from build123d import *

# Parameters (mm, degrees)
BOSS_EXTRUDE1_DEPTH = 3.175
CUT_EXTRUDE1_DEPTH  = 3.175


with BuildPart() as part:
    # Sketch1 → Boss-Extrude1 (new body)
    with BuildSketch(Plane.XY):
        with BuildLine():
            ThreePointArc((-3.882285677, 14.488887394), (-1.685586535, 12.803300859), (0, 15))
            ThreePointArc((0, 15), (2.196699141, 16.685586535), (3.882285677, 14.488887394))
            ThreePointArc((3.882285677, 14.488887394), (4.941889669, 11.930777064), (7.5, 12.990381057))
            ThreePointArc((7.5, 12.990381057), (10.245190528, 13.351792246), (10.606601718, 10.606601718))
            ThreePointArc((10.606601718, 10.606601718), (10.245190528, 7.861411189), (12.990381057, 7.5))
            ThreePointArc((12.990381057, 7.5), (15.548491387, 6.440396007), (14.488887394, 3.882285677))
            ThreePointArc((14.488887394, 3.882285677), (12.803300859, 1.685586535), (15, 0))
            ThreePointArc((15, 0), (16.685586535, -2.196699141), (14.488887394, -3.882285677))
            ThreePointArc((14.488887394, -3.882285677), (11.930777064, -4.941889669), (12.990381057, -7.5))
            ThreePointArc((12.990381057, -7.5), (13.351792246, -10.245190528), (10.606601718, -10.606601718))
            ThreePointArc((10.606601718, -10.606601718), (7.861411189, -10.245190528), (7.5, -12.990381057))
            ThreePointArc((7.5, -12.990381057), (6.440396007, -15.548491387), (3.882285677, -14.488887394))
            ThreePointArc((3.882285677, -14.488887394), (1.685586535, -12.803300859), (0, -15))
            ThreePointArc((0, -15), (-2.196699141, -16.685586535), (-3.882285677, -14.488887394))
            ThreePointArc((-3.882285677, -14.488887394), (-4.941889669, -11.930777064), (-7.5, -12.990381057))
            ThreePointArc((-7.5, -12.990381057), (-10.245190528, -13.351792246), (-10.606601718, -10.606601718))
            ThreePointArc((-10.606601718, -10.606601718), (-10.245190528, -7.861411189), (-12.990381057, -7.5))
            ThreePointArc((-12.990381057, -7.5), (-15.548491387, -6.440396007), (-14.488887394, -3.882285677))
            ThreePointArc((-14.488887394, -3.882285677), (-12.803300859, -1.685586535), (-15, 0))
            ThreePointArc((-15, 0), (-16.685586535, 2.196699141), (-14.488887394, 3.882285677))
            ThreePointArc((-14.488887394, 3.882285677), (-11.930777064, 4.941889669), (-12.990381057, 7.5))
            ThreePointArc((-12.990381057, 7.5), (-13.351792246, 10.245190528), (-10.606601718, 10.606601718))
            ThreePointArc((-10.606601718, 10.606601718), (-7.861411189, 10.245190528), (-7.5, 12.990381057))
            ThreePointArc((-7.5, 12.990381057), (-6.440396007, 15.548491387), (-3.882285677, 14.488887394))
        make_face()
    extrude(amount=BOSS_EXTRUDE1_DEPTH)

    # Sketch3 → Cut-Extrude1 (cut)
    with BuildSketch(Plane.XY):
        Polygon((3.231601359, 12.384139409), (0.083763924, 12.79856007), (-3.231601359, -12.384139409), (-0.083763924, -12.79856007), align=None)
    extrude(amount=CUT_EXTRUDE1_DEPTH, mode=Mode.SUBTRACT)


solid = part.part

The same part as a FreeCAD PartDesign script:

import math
import FreeCAD as App
import Part
import Sketcher
Q = App.Units.Quantity

doc = App.newDocument("Part")
params = doc.addObject("Spreadsheet::Sheet", "Params")
for row, (alias, value) in enumerate([
    ("pad1_length", "0.125 in"),
    ("sketch2_length", "1 in"),
    ("sketch2_length2", "0.125 in"),
    ("pocket1_length", "0.125 in"),
], start=1):
    params.set(f"A{row}", alias)
    params.set(f"B{row}", "=" + value)
    params.setAlias(f"B{row}", alias)

body = doc.addObject("PartDesign::Body", "Body")

# Sketch on XY plane
sketch1 = body.newObject("Sketcher::SketchObject", "Sketch")
sketch1.AttachmentSupport = (doc.getObject("XY_Plane"), [""])
sketch1.MapMode = "FlatFace"
sketch1.addGeometry([
    Part.ArcOfCircle(Part.Circle(App.Vector(-1.9, 14.7, 0), App.Vector(0, 0, 1), 2), math.radians(-172), math.radians(8)),  # 0
    Part.ArcOfCircle(Part.Circle(App.Vector(-5.7, 13.7, 0), App.Vector(0, 0, 1), 2), math.radians(23), math.radians(202)),  # 1
    Part.ArcOfCircle(Part.Circle(App.Vector(-9.1, 11.8, 0), App.Vector(0, 0, 1), 2), math.radians(-143), math.radians(38)),  # 2
    Part.ArcOfCircle(Part.Circle(App.Vector(-11.8, 9.1, 0), App.Vector(0, 0, 1), 2), math.radians(53), math.radians(232)),  # 3
    Part.ArcOfCircle(Part.Circle(App.Vector(-13.7, 5.7, 0), App.Vector(0, 0, 1), 2), math.radians(-113), math.radians(68)),  # 4
    Part.ArcOfCircle(Part.Circle(App.Vector(-14.7, 1.9, 0), App.Vector(0, 0, 1), 2), math.radians(83), math.radians(262)),  # 5
    Part.ArcOfCircle(Part.Circle(App.Vector(-14.7, -1.9, 0), App.Vector(0, 0, 1), 2), math.radians(-82), math.radians(98)),  # 6
    Part.ArcOfCircle(Part.Circle(App.Vector(-13.7, -5.7, 0), App.Vector(0, 0, 1), 2), math.radians(113), math.radians(292)),  # 7
    Part.ArcOfCircle(Part.Circle(App.Vector(-11.8, -9.1, 0), App.Vector(0, 0, 1), 2), math.radians(-53), math.radians(128)),  # 8
    Part.ArcOfCircle(Part.Circle(App.Vector(-9.1, -11.8, 0), App.Vector(0, 0, 1), 2), math.radians(143), math.radians(322)),  # 9
    Part.ArcOfCircle(Part.Circle(App.Vector(-5.7, -13.7, 0), App.Vector(0, 0, 1), 2), math.radians(-23), math.radians(158)),  # 10
    Part.ArcOfCircle(Part.Circle(App.Vector(-1.9, -14.7, 0), App.Vector(0, 0, 1), 2), math.radians(173), math.radians(352)),  # 11
    Part.ArcOfCircle(Part.Circle(App.Vector(1.9, -14.7, 0), App.Vector(0, 0, 1), 2), math.radians(8), math.radians(188)),  # 12
    Part.ArcOfCircle(Part.Circle(App.Vector(5.7, -13.7, 0), App.Vector(0, 0, 1), 2), math.radians(-157), math.radians(22)),  # 13
    Part.ArcOfCircle(Part.Circle(App.Vector(9.1, -11.8, 0), App.Vector(0, 0, 1), 2), math.radians(37), math.radians(218)),  # 14
    Part.ArcOfCircle(Part.Circle(App.Vector(11.8, -9.1, 0), App.Vector(0, 0, 1), 2), math.radians(-127), math.radians(52)),  # 15
    Part.ArcOfCircle(Part.Circle(App.Vector(13.7, -5.7, 0), App.Vector(0, 0, 1), 2), math.radians(67), math.radians(248)),  # 16
    Part.ArcOfCircle(Part.Circle(App.Vector(14.7, -1.9, 0), App.Vector(0, 0, 1), 2), math.radians(-97), math.radians(82)),  # 17
    Part.ArcOfCircle(Part.Circle(App.Vector(14.7, 1.9, 0), App.Vector(0, 0, 1), 2), math.radians(98), math.radians(278)),  # 18
    Part.ArcOfCircle(Part.Circle(App.Vector(13.7, 5.7, 0), App.Vector(0, 0, 1), 2), math.radians(-67), math.radians(112)),  # 19
    Part.ArcOfCircle(Part.Circle(App.Vector(11.8, 9.1, 0), App.Vector(0, 0, 1), 2), math.radians(127), math.radians(308)),  # 20
    Part.ArcOfCircle(Part.Circle(App.Vector(9.1, 11.8, 0), App.Vector(0, 0, 1), 2), math.radians(-37), math.radians(142)),  # 21
    Part.ArcOfCircle(Part.Circle(App.Vector(5.7, 13.7, 0), App.Vector(0, 0, 1), 2), math.radians(157), math.radians(338)),  # 22
    Part.ArcOfCircle(Part.Circle(App.Vector(1.9, 14.7, 0), App.Vector(0, 0, 1), 2), math.radians(-7), math.radians(172)),  # 23
], False)
sketch1.addConstraint([
    Sketcher.Constraint("Coincident", 0, 1, 1, 1),
    Sketcher.Constraint("Coincident", 1, 2, 2, 2),
    Sketcher.Constraint("Coincident", 2, 1, 3, 1),
    Sketcher.Constraint("Coincident", 3, 2, 4, 2),
    Sketcher.Constraint("Coincident", 4, 1, 5, 1),
    Sketcher.Constraint("Coincident", 5, 2, 6, 2),
    Sketcher.Constraint("Coincident", 6, 1, 7, 1),
    Sketcher.Constraint("Coincident", 7, 2, 8, 2),
    Sketcher.Constraint("Coincident", 8, 1, 9, 1),
    Sketcher.Constraint("Coincident", 9, 2, 10, 2),
    Sketcher.Constraint("Coincident", 10, 1, 11, 1),
    Sketcher.Constraint("Coincident", 11, 2, 12, 2),
    Sketcher.Constraint("Coincident", 12, 1, 13, 1),
    Sketcher.Constraint("Coincident", 13, 2, 14, 2),
    Sketcher.Constraint("Coincident", 14, 1, 15, 1),
    Sketcher.Constraint("Coincident", 15, 2, 16, 2),
    Sketcher.Constraint("Coincident", 16, 1, 17, 1),
    Sketcher.Constraint("Coincident", 17, 2, 18, 2),
    Sketcher.Constraint("Coincident", 18, 1, 19, 1),
    Sketcher.Constraint("Coincident", 19, 2, 20, 2),
    Sketcher.Constraint("Coincident", 20, 1, 21, 1),
    Sketcher.Constraint("Coincident", 21, 2, 22, 2),
    Sketcher.Constraint("Coincident", 22, 1, 23, 1),
    Sketcher.Constraint("Coincident", 23, 2, 0, 2),
    Sketcher.Constraint("Equal", 0, 1),
    Sketcher.Constraint("Equal", 1, 2),
    Sketcher.Constraint("Equal", 2, 3),
    Sketcher.Constraint("Equal", 3, 4),
    Sketcher.Constraint("Equal", 4, 5),
    Sketcher.Constraint("Equal", 5, 6),
    Sketcher.Constraint("Equal", 6, 7),
    Sketcher.Constraint("Equal", 7, 8),
    Sketcher.Constraint("Equal", 8, 9),
    Sketcher.Constraint("Equal", 9, 10),
    Sketcher.Constraint("Equal", 10, 11),
    Sketcher.Constraint("Equal", 11, 12),
    Sketcher.Constraint("Equal", 12, 13),
    Sketcher.Constraint("Equal", 13, 14),
    Sketcher.Constraint("Equal", 14, 15),
    Sketcher.Constraint("Equal", 15, 16),
    Sketcher.Constraint("Equal", 16, 17),
    Sketcher.Constraint("Equal", 17, 18),
    Sketcher.Constraint("Equal", 18, 19),
    Sketcher.Constraint("Equal", 19, 20),
    Sketcher.Constraint("Equal", 20, 21),
    Sketcher.Constraint("Equal", 21, 22),
    Sketcher.Constraint("Equal", 22, 23),
    Sketcher.Constraint("Symmetric", 0, 3, 12, 3, -1, 1),
    Sketcher.Constraint("Symmetric", 1, 3, 13, 3, -1, 1),
    Sketcher.Constraint("Symmetric", 2, 3, 14, 3, -1, 1),
    Sketcher.Constraint("Symmetric", 3, 3, 15, 3, -1, 1),
    Sketcher.Constraint("Symmetric", 4, 3, 16, 3, -1, 1),
    Sketcher.Constraint("Symmetric", 5, 3, 17, 3, -1, 1),
    Sketcher.Constraint("Symmetric", 6, 3, 18, 3, -1, 1),
    Sketcher.Constraint("Symmetric", 7, 3, 19, 3, -1, 1),
    Sketcher.Constraint("Symmetric", 8, 3, 20, 3, -1, 1),
    Sketcher.Constraint("Symmetric", 9, 3, 21, 3, -1, 1),
    Sketcher.Constraint("Symmetric", 10, 3, 22, 3, -1, 1),
    Sketcher.Constraint("Symmetric", 11, 3, 23, 3, -1, 1),
    Sketcher.Constraint("Symmetric", 11, 3, 12, 3, -2),
    Sketcher.Constraint("Symmetric", 10, 3, 13, 3, -2),
    Sketcher.Constraint("Symmetric", 9, 3, 14, 3, -2),
    Sketcher.Constraint("Symmetric", 8, 3, 15, 3, -2),
    Sketcher.Constraint("Symmetric", 7, 3, 16, 3, -2),
    Sketcher.Constraint("Symmetric", 6, 3, 17, 3, -2),
    Sketcher.Constraint("Radius", 0, 1.957893),
    Sketcher.Constraint("DistanceX", 2, 3, -1, 1, 9.053301),
    Sketcher.Constraint("DistanceY", -1, 1, 3, 3, 9.053301),
    Sketcher.Constraint("DistanceX", 1, 2, -1, 1, 7.5),
    Sketcher.Constraint("DistanceX", 2, 1, -1, 1, 10.606602),
    Sketcher.Constraint("DistanceY", -1, 1, 2, 1, 10.606602),
    Sketcher.Constraint("DistanceY", -1, 1, 3, 2, 7.5),
    Sketcher.Constraint("DistanceX", 5, 2, -1, 1, 15.0),
    Sketcher.Constraint("DistanceY", 11, 2, -1, 1, 15.0),
    Sketcher.Constraint("DistanceX", 1, 3, 0, 3, 3.75),
    Sketcher.Constraint("DistanceY", 4, 3, 0, 3, 9.053301),
    Sketcher.Constraint("DistanceY", 5, 3, 4, 3, 3.75),
    Sketcher.Constraint("DistanceX", 5, 3, 1, 3, 9.053301),
])
pad1 = body.newObject("PartDesign::Pad", "Pad")
pad1.Profile = sketch1
pad1.setExpression("Length", "Params.pad1_length")

# Sketch on XY plane
sketch2 = body.newObject("Sketcher::SketchObject", "Sketch001")
sketch2.AttachmentSupport = (doc.getObject("XY_Plane"), [""])
sketch2.MapMode = "FlatFace"
sketch2.addGeometry([
    Part.LineSegment(App.Vector(3.2, 12.4, 0), App.Vector(0.1, 12.8, 0)),
    Part.LineSegment(App.Vector(0.1, 12.8, 0), App.Vector(-3.2, -12.4, 0)),
    Part.LineSegment(App.Vector(-3.2, -12.4, 0), App.Vector(-0.1, -12.8, 0)),
    Part.LineSegment(App.Vector(-0.1, -12.8, 0), App.Vector(3.2, 12.4, 0)),
], False)
sketch2.addConstraint([
    Sketcher.Constraint("Coincident", 0, 2, 1, 1),
    Sketcher.Constraint("Coincident", 1, 2, 2, 1),
    Sketcher.Constraint("Coincident", 2, 2, 3, 1),
    Sketcher.Constraint("Coincident", 3, 2, 0, 1),
    Sketcher.Constraint("Symmetric", 0, 2, 2, 2, -1, 1),
    Sketcher.Constraint("Symmetric", 1, 2, 3, 2, -1, 1),
    Sketcher.Constraint("Perpendicular", 0, 1),
    Sketcher.Constraint("Distance", 1, Q("1 in")),
    Sketcher.Constraint("Angle", 0, Q("172.5 deg")),
    Sketcher.Constraint("Distance", 0, Q("0.125 in")),
])
sketch2.setExpression("Constraints[7]", "Params.sketch2_length")
sketch2.setExpression("Constraints[9]", "Params.sketch2_length2")
pocket1 = body.newObject("PartDesign::Pocket", "Pocket")
pocket1.Profile = sketch2
pocket1.setExpression("Length", "Params.pocket1_length")
pocket1.Reversed = True

doc.recompute()
